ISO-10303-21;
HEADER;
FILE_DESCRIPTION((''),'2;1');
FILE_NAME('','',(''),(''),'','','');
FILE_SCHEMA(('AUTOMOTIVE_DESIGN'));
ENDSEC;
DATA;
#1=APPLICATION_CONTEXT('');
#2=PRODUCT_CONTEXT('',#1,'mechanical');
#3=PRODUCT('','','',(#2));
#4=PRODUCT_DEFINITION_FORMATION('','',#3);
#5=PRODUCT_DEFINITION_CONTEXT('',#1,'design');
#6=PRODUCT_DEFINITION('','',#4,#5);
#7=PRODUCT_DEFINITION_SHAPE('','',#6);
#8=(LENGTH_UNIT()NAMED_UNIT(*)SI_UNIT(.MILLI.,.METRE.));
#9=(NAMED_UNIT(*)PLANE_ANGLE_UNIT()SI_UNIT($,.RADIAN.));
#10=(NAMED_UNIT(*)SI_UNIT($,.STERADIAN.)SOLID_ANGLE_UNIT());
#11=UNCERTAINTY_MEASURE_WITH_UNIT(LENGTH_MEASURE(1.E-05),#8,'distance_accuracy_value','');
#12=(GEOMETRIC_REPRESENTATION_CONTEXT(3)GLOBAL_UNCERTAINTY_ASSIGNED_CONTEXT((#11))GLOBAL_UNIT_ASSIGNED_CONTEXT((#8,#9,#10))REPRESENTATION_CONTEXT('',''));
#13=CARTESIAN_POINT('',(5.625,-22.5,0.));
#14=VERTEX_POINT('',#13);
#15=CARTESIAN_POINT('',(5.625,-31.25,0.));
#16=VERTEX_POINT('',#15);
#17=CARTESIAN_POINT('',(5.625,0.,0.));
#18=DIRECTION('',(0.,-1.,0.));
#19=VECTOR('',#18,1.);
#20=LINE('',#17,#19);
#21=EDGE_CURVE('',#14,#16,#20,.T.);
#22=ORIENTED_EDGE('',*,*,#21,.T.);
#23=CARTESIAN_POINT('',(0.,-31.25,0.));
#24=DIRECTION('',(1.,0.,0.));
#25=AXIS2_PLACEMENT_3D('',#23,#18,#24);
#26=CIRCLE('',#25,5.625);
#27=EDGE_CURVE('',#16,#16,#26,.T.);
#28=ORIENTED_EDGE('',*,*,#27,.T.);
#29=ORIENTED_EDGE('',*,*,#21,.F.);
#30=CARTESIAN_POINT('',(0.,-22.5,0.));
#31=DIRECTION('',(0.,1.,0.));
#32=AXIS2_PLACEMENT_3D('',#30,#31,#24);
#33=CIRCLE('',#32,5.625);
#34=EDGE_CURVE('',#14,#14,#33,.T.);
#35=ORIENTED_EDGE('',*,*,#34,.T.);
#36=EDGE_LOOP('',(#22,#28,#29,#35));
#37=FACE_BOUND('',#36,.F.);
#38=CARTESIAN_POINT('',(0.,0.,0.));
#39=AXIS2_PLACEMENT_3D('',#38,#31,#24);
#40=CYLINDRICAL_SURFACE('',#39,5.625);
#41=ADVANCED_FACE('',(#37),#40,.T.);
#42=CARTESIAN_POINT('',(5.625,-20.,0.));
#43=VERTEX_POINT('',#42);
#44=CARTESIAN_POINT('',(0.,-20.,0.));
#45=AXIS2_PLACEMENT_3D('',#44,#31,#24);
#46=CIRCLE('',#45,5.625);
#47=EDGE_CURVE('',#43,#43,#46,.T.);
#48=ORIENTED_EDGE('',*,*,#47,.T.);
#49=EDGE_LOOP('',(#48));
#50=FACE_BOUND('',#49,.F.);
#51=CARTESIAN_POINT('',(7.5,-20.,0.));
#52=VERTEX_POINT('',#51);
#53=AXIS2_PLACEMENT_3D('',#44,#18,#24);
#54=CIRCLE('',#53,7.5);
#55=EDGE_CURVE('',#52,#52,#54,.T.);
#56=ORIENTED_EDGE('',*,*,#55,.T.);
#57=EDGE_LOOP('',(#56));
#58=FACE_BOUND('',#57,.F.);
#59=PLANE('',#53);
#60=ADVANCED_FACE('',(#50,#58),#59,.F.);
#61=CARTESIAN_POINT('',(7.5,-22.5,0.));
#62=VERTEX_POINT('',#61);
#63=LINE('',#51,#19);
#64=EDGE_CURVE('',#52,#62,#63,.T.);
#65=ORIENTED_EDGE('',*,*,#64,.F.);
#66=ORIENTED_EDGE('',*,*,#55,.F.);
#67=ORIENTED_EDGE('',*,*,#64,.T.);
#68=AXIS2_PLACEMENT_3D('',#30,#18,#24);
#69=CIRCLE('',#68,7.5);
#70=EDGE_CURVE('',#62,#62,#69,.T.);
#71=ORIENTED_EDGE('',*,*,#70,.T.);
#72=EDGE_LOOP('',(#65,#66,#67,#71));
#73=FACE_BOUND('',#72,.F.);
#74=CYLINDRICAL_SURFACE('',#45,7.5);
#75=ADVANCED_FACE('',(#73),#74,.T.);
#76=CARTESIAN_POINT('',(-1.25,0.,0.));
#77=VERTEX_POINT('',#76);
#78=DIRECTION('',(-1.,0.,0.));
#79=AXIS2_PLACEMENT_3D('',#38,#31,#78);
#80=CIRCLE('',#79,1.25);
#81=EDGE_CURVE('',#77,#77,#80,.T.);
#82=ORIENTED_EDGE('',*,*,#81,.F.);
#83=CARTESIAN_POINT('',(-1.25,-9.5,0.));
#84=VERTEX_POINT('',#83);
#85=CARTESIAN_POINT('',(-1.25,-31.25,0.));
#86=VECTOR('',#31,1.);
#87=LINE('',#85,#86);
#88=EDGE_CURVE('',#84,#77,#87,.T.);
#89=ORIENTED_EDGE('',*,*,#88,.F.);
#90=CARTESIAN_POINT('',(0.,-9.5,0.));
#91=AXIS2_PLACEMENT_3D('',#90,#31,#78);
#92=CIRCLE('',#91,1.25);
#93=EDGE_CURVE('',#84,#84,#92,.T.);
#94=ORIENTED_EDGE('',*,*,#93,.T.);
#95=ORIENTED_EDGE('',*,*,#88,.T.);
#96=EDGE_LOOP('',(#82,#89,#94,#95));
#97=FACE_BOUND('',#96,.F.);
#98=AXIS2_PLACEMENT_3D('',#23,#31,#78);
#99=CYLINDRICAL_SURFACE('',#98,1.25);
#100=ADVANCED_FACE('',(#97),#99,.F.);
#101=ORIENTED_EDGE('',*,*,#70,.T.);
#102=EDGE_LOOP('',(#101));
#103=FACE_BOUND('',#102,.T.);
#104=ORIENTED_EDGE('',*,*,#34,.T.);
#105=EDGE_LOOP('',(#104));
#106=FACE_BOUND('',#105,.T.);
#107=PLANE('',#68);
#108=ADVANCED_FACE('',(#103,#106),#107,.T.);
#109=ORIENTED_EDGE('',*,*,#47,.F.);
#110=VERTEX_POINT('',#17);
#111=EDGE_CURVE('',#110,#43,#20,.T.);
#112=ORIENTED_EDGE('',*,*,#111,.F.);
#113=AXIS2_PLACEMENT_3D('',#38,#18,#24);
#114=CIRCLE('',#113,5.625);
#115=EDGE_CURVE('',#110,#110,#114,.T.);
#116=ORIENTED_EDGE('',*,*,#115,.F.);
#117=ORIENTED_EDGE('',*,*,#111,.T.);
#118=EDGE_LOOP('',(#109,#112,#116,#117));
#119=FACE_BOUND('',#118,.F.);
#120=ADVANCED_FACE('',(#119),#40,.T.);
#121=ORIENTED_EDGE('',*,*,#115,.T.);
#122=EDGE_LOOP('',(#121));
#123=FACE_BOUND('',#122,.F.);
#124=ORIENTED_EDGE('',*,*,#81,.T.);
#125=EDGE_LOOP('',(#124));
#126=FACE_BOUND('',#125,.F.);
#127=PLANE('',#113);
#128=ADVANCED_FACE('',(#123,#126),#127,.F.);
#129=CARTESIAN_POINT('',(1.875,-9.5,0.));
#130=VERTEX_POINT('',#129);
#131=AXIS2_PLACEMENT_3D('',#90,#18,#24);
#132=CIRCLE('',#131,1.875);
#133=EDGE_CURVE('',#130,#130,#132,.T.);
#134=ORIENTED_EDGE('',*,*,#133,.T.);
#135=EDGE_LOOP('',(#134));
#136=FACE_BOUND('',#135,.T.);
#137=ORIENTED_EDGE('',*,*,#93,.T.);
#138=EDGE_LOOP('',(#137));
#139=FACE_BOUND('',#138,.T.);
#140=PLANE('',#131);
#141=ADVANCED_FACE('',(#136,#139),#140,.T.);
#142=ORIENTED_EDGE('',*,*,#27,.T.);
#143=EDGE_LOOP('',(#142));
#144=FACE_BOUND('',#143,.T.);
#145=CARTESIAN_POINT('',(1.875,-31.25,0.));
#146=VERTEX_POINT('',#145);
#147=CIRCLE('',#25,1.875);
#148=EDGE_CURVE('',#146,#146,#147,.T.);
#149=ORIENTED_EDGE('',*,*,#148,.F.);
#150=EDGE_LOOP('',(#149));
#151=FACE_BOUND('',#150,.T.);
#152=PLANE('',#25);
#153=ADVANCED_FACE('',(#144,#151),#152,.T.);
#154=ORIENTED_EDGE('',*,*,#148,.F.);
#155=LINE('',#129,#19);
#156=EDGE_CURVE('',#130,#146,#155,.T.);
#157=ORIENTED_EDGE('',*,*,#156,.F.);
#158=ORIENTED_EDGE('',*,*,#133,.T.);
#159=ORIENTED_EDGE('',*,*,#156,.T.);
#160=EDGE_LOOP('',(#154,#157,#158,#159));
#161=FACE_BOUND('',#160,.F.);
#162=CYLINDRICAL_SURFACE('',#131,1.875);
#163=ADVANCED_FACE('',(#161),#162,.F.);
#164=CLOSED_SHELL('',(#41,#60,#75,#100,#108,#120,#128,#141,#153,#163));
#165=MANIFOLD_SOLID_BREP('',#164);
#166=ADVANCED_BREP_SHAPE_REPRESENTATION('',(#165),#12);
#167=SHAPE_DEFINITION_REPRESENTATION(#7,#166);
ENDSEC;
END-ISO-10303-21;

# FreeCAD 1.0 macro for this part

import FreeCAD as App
import Part
import Sketcher

doc = App.newDocument("Part")
body = doc.addObject("PartDesign::Body", "Body")

sketch1 = body.newObject("Sketcher::SketchObject", "Sketch")
sketch1.AttachmentSupport = (doc.getObject("XZ_Plane"), [""])
sketch1.MapMode = "FlatFace"
sketch1.addGeometry(Part.Circle(App.Vector(0, 0, 0), App.Vector(0, 0, 1), 5.625), False)
sketch1.addConstraint([
    Sketcher.Constraint("Coincident", 0, 3, -1, 1),
    Sketcher.Constraint("Diameter", 0, 11.25),
])
pad1 = body.newObject("PartDesign::Pad", "Pad")
pad1.Profile = sketch1
pad1.Length = 31.25

sketch2 = body.newObject("Sketcher::SketchObject", "Sketch001")
sketch2.AttachmentSupport = (doc.getObject("XZ_Plane"), [""])
sketch2.MapMode = "FlatFace"
sketch2.AttachmentOffset = App.Placement(App.Vector(0, 0, 20), App.Rotation())
sketch2.addGeometry(Part.Circle(App.Vector(0, 0, 0), App.Vector(0, 0, 1), 7.5), False)
sketch2.addConstraint([
    Sketcher.Constraint("Coincident", 0, 3, -1, 1),
    Sketcher.Constraint("Diameter", 0, 15.0),
])
pad2 = body.newObject("PartDesign::Pad", "Pad001")
pad2.Profile = sketch2
pad2.Length = 2.5

sketch3 = body.newObject("Sketcher::SketchObject", "Sketch002")
sketch3.AttachmentSupport = (doc.getObject("XZ_Plane"), [""])
sketch3.MapMode = "FlatFace"
sketch3.AttachmentOffset = App.Placement(App.Vector(0, 0, 31.25), App.Rotation())
sketch3.addGeometry(Part.Circle(App.Vector(0, 0, 0), App.Vector(0, 0, 1), 1.25), False)
sketch3.addConstraint([
    Sketcher.Constraint("Coincident", 0, 3, -1, 1),
    Sketcher.Constraint("Diameter", 0, 2.5),
])
doc.recompute()
hole = body.newObject("PartDesign::Hole", "Hole")
hole.Profile = sketch3
hole.ThreadType = "None"
hole.Diameter = 2.5
hole.DepthType = "Dimension"
hole.Depth = 40
hole.DrillPoint = "Flat"
hole.HoleCutType = "Counterbore"
hole.HoleCutDiameter = 3.75
hole.HoleCutDepth = 21.75

doc.recompute()
